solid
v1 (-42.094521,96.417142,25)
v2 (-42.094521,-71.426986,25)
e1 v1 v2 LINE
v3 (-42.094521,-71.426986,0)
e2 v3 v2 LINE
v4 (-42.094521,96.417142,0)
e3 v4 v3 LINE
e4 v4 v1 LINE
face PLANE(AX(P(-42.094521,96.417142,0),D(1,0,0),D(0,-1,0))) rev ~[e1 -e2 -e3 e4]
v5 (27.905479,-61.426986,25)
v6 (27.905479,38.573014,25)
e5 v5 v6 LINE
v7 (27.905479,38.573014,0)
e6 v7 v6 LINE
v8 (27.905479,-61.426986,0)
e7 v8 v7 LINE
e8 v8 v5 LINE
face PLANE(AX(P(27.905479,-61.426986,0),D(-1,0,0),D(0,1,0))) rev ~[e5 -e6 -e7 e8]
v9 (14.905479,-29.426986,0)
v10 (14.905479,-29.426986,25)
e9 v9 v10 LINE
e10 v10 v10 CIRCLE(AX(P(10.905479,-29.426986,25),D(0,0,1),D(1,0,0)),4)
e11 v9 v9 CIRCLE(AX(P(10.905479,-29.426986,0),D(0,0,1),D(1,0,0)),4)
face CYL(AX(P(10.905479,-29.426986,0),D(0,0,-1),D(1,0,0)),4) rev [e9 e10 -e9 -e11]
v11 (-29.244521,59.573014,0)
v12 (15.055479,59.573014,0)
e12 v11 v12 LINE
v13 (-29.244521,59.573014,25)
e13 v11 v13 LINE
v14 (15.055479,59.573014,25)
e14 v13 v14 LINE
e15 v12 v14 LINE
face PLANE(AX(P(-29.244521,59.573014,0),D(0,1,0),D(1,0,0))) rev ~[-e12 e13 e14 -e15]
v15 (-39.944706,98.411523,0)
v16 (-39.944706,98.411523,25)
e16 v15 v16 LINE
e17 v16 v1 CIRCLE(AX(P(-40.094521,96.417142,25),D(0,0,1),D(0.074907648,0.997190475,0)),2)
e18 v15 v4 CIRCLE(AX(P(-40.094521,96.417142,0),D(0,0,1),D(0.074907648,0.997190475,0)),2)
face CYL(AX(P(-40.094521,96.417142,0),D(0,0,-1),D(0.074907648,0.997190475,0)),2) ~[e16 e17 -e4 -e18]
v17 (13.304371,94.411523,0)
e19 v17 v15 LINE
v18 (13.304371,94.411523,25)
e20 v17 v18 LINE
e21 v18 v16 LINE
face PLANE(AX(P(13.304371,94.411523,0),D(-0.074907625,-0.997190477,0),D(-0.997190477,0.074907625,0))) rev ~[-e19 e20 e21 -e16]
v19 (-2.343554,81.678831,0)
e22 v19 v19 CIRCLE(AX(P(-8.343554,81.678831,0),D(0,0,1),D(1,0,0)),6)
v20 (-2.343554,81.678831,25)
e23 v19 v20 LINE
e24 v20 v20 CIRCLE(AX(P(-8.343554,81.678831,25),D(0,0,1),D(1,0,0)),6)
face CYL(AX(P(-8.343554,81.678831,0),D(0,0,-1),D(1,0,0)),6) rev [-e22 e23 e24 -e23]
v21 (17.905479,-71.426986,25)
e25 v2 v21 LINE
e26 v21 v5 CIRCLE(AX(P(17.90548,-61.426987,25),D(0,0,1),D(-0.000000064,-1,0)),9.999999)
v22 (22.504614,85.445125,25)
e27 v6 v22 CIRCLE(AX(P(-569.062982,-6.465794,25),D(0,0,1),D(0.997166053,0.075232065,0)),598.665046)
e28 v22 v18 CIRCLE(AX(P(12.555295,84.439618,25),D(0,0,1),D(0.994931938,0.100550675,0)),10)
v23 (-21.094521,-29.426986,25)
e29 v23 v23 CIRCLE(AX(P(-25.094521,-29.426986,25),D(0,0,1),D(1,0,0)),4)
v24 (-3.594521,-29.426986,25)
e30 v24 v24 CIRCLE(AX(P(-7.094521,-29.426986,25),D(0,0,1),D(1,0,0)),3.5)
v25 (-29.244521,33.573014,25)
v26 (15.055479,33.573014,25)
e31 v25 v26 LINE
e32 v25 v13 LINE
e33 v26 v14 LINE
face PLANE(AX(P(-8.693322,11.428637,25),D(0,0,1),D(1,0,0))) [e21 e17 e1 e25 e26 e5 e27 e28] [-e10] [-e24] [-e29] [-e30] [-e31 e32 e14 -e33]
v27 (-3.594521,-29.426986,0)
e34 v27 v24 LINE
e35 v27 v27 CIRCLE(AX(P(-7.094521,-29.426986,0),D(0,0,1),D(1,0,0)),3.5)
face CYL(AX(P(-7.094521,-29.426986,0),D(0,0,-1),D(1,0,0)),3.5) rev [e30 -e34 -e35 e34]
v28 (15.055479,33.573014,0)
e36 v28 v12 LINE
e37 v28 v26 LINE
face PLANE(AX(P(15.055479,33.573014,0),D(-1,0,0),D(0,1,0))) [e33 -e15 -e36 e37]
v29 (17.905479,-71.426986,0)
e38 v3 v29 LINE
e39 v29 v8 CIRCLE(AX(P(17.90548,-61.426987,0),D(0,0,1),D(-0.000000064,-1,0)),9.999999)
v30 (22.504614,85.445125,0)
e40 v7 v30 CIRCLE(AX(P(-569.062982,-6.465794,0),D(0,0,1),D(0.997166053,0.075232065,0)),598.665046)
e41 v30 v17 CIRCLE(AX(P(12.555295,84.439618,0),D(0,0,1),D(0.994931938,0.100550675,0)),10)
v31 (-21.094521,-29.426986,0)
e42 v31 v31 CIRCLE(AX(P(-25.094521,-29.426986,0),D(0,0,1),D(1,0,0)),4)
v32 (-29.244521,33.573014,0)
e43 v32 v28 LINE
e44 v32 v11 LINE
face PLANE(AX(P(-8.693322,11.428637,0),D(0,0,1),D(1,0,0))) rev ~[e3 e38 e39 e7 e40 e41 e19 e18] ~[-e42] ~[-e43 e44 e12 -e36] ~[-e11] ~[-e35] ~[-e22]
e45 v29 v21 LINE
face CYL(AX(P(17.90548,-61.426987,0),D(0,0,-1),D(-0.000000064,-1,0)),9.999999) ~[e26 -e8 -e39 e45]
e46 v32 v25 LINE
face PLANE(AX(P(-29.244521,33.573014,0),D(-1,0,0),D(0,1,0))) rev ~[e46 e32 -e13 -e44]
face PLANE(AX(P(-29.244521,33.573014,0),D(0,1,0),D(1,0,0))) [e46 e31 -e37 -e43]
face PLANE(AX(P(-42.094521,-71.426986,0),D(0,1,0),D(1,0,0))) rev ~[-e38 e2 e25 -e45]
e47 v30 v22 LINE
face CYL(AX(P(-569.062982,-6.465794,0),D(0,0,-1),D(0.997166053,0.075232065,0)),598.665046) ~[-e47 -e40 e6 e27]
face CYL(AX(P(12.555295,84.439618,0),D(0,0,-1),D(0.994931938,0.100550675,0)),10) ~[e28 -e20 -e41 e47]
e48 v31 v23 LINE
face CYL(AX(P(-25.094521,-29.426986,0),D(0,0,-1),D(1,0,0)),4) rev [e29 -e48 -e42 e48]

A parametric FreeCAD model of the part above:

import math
import FreeCAD as App
import Part
import Sketcher

V = App.Vector

doc = App.newDocument("Part")
params = doc.addObject("Spreadsheet::Sheet", "Params")
for row, (alias, value) in enumerate([
    ("sketch1_diameter", "8 mm"),
    ("sketch1_diameter2", "7 mm"),
    ("sketch1_diameter3", "12 mm"),
    ("sketch1_radius", "9.999999 mm"),
    ("sketch1_radius2", "2 mm"),
    ("pad1_length", "25 mm"),
], start=1):
    params.set(f"A{row}", alias)
    params.set(f"B{row}", "=" + value)
    params.setAlias(f"B{row}", alias)

body = doc.addObject("PartDesign::Body", "Body")

# Sketch on XY plane
sketch1 = body.newObject("Sketcher::SketchObject", "Sketch")
sketch1.AttachmentSupport = (doc.getObject("XY_Plane"), [""])
sketch1.MapMode = "FlatFace"
sketch1.addGeometry(Part.LineSegment(V(-42.094521, 96.417142, 0), V(-42.094521, -71.426986, 0)), False)
sketch1.addGeometry(Part.LineSegment(V(-42.094521, -71.426986, 0), V(17.905479, -71.426986, 0)), False)
sketch1.addGeometry(Part.ArcOfCircle(Part.Circle(V(17.90548, -61.426987, 0), V(0, 0, 1), 9.999999), math.radians(-90.000004), math.radians(0.000004)), False)
sketch1.addGeometry(Part.LineSegment(V(27.905479, -61.426986, 0), V(27.905479, 38.573014, 0)), False)
sketch1.addGeometry(Part.ArcOfCircle(Part.Circle(V(-569.062982, -6.465794, 0), V(0, 0, 1), 598.665046), math.radians(4.314556), math.radians(8.831345)), False)
sketch1.addGeometry(Part.ArcOfCircle(Part.Circle(V(12.555295, 84.439618, 0), V(0, 0, 1), 10), math.radians(5.770882), math.radians(85.704085)), False)
sketch1.addGeometry(Part.LineSegment(V(13.304371, 94.411523, 0), V(-39.944706, 98.411523, 0)), False)
sketch1.addGeometry(Part.ArcOfCircle(Part.Circle(V(-40.094521, 96.417142, 0), V(0, 0, 1), 2), math.radians(85.704084), math.radians(180.000009)), False)
sketch1.addGeometry(Part.Circle(V(-25.094521, -29.426986, 0), V(0, 0, 1), 4), False)
sketch1.addGeometry(Part.Circle(V(-7.094521, -29.426986, 0), V(0, 0, 1), 3.5), False)
sketch1.addGeometry(Part.Circle(V(10.905479, -29.426986, 0), V(0, 0, 1), 4), False)
sketch1.addGeometry(Part.Circle(V(-8.343554, 81.678831, 0), V(0, 0, 1), 6), False)
sketch1.addGeometry(Part.LineSegment(V(15.055479, 33.573014, 0), V(-29.244521, 33.573014, 0)), False)
sketch1.addGeometry(Part.LineSegment(V(-29.244521, 33.573014, 0), V(-29.244521, 59.573014, 0)), False)
sketch1.addGeometry(Part.LineSegment(V(-29.244521, 59.573014, 0), V(15.055479, 59.573014, 0)), False)
sketch1.addGeometry(Part.LineSegment(V(15.055479, 59.573014, 0), V(15.055479, 33.573014, 0)), False)
sketch1.addConstraint(Sketcher.Constraint("Coincident", 0, 2, 1, 1))
sketch1.addConstraint(Sketcher.Constraint("Tangent", 1, 2, 2, 1))
sketch1.addConstraint(Sketcher.Constraint("Tangent", 2, 2, 3, 1))
sketch1.addConstraint(Sketcher.Constraint("Coincident", 3, 2, 4, 1))
sketch1.addConstraint(Sketcher.Constraint("Coincident", 4, 2, 5, 1))
sketch1.addConstraint(Sketcher.Constraint("Tangent", 5, 2, 6, 1))
sketch1.addConstraint(Sketcher.Constraint("Tangent", 6, 2, 7, 1))
sketch1.addConstraint(Sketcher.Constraint("Tangent", 7, 2, 0, 1))
sketch1.addConstraint(Sketcher.Constraint("Coincident", 12, 2, 13, 1))
sketch1.addConstraint(Sketcher.Constraint("Coincident", 13, 2, 14, 1))
sketch1.addConstraint(Sketcher.Constraint("Coincident", 14, 2, 15, 1))
sketch1.addConstraint(Sketcher.Constraint("Coincident", 15, 2, 12, 1))
sketch1.addConstraint(Sketcher.Constraint("Vertical", 0))
sketch1.addConstraint(Sketcher.Constraint("Horizontal", 1))
sketch1.addConstraint(Sketcher.Constraint("Vertical", 3))
sketch1.addConstraint(Sketcher.Constraint("Horizontal", 12))
sketch1.addConstraint(Sketcher.Constraint("Vertical", 13))
sketch1.addConstraint(Sketcher.Constraint("Horizontal", 14))
sketch1.addConstraint(Sketcher.Constraint("Vertical", 15))
sketch1.addConstraint(Sketcher.Constraint("Equal", 2, 5))
sketch1.addConstraint(Sketcher.Constraint("Equal", 8, 10))
sketch1.addConstraint(Sketcher.Constraint("Horizontal", 8, 3, 9, 3))
sketch1.addConstraint(Sketcher.Constraint("Horizontal", 9, 3, 10, 3))
sketch1.addConstraint(Sketcher.Constraint("Diameter", 8, 8.0))
sketch1.addConstraint(Sketcher.Constraint("Diameter", 9, 7.0))
sketch1.addConstraint(Sketcher.Constraint("Diameter", 11, 12.0))
sketch1.addConstraint(Sketcher.Constraint("Radius", 2, 9.999999))
sketch1.addConstraint(Sketcher.Constraint("Radius", 7, 2.0))
sketch1.addConstraint(Sketcher.Constraint("DistanceX", 1, 1, 1, 2, 60.0))
sketch1.addConstraint(Sketcher.Constraint("DistanceY", 3, 1, 3, 2, 100.0))
sketch1.addConstraint(Sketcher.Constraint("DistanceY", 13, 1, 13, 2, 26.0))
sketch1.addConstraint(Sketcher.Constraint("DistanceX", 12, 2, 12, 1, 44.3))
sketch1.addConstraint(Sketcher.Constraint("DistanceX", 8, 3, 2, 3, 43.000001))
sketch1.addConstraint(Sketcher.Constraint("DistanceY", 2, 3, 8, 3, 32.000001))
sketch1.addConstraint(Sketcher.Constraint("DistanceX", 8, 3, 9, 3, 18.0))
sketch1.addConstraint(Sketcher.Constraint("DistanceX", 9, 3, 10, 3, 18.0))
sketch1.addConstraint(Sketcher.Constraint("DistanceY", 5, 2, 6, 2, 4.0))
sketch1.addConstraint(Sketcher.Constraint("DistanceY", 12, 2, 3, 2, 5.0))
sketch1.addConstraint(Sketcher.Constraint("DistanceX", 6, 2, 5, 3, 52.500001))
sketch1.addConstraint(Sketcher.Constraint("DistanceX", 12, 2, 3, 2, 57.15))
sketch1.addConstraint(Sketcher.Constraint("Radius", 4, 598.665046))
sketch1.addConstraint(Sketcher.Constraint("DistanceY", 0, 2, 0, 1, 167.844128))
sketch1.addConstraint(Sketcher.Constraint("DistanceY", 4, 2, 5, 2, 8.966398))
sketch1.addConstraint(Sketcher.Constraint("DistanceX", -1, 1, 2, 3, 17.90548))
sketch1.addConstraint(Sketcher.Constraint("DistanceY", -1, 1, 5, 3, 84.439618))
sketch1.addConstraint(Sketcher.Constraint("DistanceY", -1, 1, 11, 3, 81.678831))
sketch1.addConstraint(Sketcher.Constraint("DistanceX", 11, 3, 5, 3, 20.898849))
sketch1.setExpression("Constraints[23]", "Params.sketch1_diameter")
sketch1.setExpression("Constraints[24]", "Params.sketch1_diameter2")
sketch1.setExpression("Constraints[25]", "Params.sketch1_diameter3")
sketch1.setExpression("Constraints[26]", "Params.sketch1_radius")
sketch1.setExpression("Constraints[27]", "Params.sketch1_radius2")
pad1 = body.newObject("PartDesign::Pad", "Pad")
pad1.Profile = sketch1
pad1.setExpression("Length", "Params.pad1_length")

doc.recompute()
